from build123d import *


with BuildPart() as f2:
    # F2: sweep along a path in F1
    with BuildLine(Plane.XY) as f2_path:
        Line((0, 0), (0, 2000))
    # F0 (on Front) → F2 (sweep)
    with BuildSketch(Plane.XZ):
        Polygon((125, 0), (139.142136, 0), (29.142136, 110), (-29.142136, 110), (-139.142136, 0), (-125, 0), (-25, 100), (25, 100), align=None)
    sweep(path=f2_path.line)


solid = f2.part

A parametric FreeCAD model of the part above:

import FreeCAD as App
import Part
import Sketcher
Q = App.Units.Quantity


def add_polygon(sketch, points):
    """Adds a closed chain of lines whose ends are joined by coincident constraints."""
    first, n = sketch.GeometryCount, len(points)
    for a, b in zip(points, points[1:] + points[:1]):
        sketch.addGeometry(Part.LineSegment(App.Vector(*a, 0), App.Vector(*b, 0)), False)
    for i in range(n):
        sketch.addConstraint(Sketcher.Constraint("Coincident", first + i, 2, first + (i + 1) % n, 1))

doc = App.newDocument("Part")
body = doc.addObject("PartDesign::Body", "Body")

# Sketch on XZ plane
sketch1 = doc.addObject("Sketcher::SketchObject", "Sketch")
body.addObject(sketch1)
sketch1.AttachmentSupport = (doc.XZ_Plane, [""])
sketch1.MapMode = "FlatFace"
add_polygon(sketch1, [(125, 0), (139, 0), (29, 110), (-29, 110), (-139, 0), (-125, 0), (-25, 100), (25, 100)])  # lines 0-7
sketch1.addConstraint([
    Sketcher.Constraint("Horizontal", 0),
    Sketcher.Constraint("Horizontal", 2),
    Sketcher.Constraint("Horizontal", 4),
    Sketcher.Constraint("Horizontal", 6),
    Sketcher.Constraint("Symmetric", 0, 2, 3, 2, -1, 1),
    Sketcher.Constraint("Symmetric", 4, 2, 7, 2, -2),
    Sketcher.Constraint("Perpendicular", 1, 3),
    Sketcher.Constraint("Parallel", 3, 5),
    Sketcher.Constraint("Perpendicular", 5, 7),
    Sketcher.Constraint("Equal", 1, 3),
    Sketcher.Constraint("DistanceX", 6, 1, 6, 2, Q("50 mm")),
    Sketcher.Constraint("DistanceY", -1, 1, 1, 2, Q("110 mm")),
    Sketcher.Constraint("DistanceX", 4, 2, -1, 1, Q("125 mm")),
    Sketcher.Constraint("DistanceX", 0, 1, 0, 2, Q("14.142136 mm")),
])

# Sketch on XY plane
sketch2 = doc.addObject("Sketcher::SketchObject", "Sketch001")
body.addObject(sketch2)
sketch2.AttachmentSupport = (doc.XY_Plane, [""])
sketch2.MapMode = "FlatFace"
sketch2.addGeometry(Part.LineSegment(App.Vector(0, 0, 0), App.Vector(0, 2000, 0)), False)
sketch2.addConstraint([
    Sketcher.Constraint("Vertical", 0),
    Sketcher.Constraint("Coincident", 0, 1, -1, 1),
    Sketcher.Constraint("DistanceY", 0, 1, 0, 2, Q("2000 mm")),
])
doc.recompute()

additivepipe = doc.addObject("PartDesign::AdditivePipe", "AdditivePipe")
body.addObject(additivepipe)
additivepipe.Profile = sketch1
additivepipe.Spine = (sketch2, ["Edge1"])

doc.recompute()
